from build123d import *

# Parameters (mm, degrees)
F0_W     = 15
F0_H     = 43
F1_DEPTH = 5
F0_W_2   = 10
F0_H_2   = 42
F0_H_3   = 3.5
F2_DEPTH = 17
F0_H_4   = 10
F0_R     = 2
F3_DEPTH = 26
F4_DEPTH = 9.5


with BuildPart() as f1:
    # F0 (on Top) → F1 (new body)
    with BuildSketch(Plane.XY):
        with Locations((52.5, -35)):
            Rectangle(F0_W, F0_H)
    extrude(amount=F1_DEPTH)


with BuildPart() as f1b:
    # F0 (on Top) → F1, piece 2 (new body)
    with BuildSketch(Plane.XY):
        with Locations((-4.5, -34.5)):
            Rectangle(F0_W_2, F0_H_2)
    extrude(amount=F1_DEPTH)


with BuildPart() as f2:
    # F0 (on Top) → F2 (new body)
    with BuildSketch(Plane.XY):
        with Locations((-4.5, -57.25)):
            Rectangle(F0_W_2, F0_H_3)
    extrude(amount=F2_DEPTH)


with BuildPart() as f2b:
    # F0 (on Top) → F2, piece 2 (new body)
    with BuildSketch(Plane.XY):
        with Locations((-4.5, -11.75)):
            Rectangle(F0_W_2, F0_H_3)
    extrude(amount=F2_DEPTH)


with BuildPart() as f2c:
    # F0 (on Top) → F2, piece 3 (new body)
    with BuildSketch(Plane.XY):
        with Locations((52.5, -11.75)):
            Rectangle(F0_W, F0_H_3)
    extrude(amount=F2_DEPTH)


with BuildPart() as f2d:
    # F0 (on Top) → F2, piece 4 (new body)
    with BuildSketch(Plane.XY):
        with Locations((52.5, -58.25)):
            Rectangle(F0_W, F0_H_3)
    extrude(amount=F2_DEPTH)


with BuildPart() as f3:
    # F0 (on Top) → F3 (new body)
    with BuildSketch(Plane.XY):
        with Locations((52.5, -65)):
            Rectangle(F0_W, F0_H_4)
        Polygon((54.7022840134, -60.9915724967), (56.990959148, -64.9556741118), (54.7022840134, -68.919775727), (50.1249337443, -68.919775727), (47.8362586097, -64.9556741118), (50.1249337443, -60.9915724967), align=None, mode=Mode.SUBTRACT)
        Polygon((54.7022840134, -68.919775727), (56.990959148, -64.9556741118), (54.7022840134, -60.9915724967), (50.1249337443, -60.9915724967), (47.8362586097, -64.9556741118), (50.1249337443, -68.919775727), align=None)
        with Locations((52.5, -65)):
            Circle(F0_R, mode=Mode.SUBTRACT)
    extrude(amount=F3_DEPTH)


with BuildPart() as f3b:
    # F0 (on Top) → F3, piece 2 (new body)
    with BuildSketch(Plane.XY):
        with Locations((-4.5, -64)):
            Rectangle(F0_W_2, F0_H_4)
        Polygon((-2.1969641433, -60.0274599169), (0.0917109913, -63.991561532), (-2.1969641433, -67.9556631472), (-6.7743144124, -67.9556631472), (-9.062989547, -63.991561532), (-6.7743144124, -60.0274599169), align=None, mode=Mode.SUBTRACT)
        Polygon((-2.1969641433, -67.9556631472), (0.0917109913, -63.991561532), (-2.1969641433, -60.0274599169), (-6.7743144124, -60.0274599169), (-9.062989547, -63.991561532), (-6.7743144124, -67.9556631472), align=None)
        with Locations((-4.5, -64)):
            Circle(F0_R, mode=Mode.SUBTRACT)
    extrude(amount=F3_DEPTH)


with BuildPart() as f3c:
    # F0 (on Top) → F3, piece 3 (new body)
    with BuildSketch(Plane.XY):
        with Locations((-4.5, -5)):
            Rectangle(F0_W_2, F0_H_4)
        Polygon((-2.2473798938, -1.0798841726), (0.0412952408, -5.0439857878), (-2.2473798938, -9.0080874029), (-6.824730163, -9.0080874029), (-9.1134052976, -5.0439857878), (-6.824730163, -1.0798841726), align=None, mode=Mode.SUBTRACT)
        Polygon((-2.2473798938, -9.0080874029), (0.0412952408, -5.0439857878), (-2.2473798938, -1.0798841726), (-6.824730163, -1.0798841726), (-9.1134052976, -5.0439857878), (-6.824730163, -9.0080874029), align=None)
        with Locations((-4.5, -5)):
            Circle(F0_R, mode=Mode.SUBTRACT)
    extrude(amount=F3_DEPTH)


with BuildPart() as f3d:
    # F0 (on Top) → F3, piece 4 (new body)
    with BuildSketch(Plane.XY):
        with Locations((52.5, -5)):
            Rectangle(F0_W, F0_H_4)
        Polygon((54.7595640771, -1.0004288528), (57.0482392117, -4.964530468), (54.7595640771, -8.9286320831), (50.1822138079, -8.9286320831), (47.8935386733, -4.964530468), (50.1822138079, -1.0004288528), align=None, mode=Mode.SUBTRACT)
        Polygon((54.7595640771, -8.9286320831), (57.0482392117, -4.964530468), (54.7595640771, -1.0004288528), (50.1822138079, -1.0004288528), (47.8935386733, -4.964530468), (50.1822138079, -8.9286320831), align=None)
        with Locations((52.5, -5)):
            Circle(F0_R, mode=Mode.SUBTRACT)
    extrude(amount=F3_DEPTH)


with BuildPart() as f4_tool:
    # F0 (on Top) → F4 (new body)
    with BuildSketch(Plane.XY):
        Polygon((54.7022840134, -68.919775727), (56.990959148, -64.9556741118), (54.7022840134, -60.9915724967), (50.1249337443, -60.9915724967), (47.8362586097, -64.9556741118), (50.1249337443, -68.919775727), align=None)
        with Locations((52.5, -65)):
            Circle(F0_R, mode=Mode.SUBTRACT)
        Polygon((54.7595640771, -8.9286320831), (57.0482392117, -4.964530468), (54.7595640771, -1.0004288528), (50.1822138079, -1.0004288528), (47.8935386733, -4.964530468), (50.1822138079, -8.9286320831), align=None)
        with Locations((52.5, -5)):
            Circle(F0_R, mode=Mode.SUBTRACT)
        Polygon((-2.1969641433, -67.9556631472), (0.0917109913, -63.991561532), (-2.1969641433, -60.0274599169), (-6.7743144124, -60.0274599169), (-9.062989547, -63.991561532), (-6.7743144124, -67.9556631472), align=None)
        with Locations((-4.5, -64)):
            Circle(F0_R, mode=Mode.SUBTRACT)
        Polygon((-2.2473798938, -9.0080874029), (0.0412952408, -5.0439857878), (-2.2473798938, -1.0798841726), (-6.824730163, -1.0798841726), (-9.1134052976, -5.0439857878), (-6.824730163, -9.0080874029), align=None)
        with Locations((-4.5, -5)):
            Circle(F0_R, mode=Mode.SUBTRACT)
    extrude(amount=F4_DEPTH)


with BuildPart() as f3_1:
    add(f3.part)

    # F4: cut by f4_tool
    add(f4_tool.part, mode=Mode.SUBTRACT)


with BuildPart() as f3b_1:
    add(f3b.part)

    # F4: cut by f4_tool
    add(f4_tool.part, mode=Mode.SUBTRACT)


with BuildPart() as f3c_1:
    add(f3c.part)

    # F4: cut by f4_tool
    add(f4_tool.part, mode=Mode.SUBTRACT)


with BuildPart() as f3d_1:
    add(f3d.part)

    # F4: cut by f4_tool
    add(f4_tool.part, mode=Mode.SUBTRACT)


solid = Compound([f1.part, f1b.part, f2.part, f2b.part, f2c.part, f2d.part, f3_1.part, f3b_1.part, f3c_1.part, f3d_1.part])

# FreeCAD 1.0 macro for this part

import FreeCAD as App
import Part
import Sketcher
Q = App.Units.Quantity

doc = App.newDocument("Part")
body = doc.addObject("PartDesign::Body", "Body")

# Sketch on XY plane
sketch1 = body.newObject("Sketcher::SketchObject", "Sketch")
sketch1.AttachmentSupport = (doc.getObject("XY_Plane"), [""])
sketch1.MapMode = "FlatFace"
sketch1.addGeometry(Part.LineSegment(App.Vector(45, -14, 0), App.Vector(45, -56, 0)), False)
sketch1.addGeometry(Part.LineSegment(App.Vector(45, -56, 0), App.Vector(60, -56, 0)), False)
sketch1.addGeometry(Part.LineSegment(App.Vector(60, -56, 0), App.Vector(60, -14, 0)), False)
sketch1.addGeometry(Part.LineSegment(App.Vector(60, -14, 0), App.Vector(45, -14, 0)), False)
sketch1.addConstraint(Sketcher.Constraint("Coincident", 0, 2, 1, 1))
sketch1.addConstraint(Sketcher.Constraint("Coincident", 1, 2, 2, 1))
sketch1.addConstraint(Sketcher.Constraint("Coincident", 2, 2, 3, 1))
sketch1.addConstraint(Sketcher.Constraint("Coincident", 3, 2, 0, 1))
sketch1.addConstraint(Sketcher.Constraint("Vertical", 0))
sketch1.addConstraint(Sketcher.Constraint("Horizontal", 1))
sketch1.addConstraint(Sketcher.Constraint("Vertical", 2))
sketch1.addConstraint(Sketcher.Constraint("Horizontal", 3))
sketch1.addConstraint(Sketcher.Constraint("DistanceX", 1, 1, 1, 2, 15.0))
sketch1.addConstraint(Sketcher.Constraint("DistanceY", 0, 2, 0, 1, 43.0))
sketch1.addConstraint(Sketcher.Constraint("DistanceX", -1, 1, 0, 2, 45.0))
sketch1.addConstraint(Sketcher.Constraint("DistanceY", 0, 2, -1, 1, 56.5))
pad1 = body.newObject("PartDesign::Pad", "Pad")
pad1.Profile = sketch1
pad1.Length = 5
body2 = doc.addObject("PartDesign::Body", "Body001")

# Sketch on XY plane
sketch2 = body2.newObject("Sketcher::SketchObject", "Sketch001")
sketch2.AttachmentSupport = (doc.getObject("XY_Plane001"), [""])
sketch2.MapMode = "FlatFace"
sketch2.addGeometry(Part.LineSegment(App.Vector(-10, -14, 0), App.Vector(-10, -56, 0)), False)
sketch2.addGeometry(Part.LineSegment(App.Vector(-10, -56, 0), App.Vector(0, -56, 0)), False)
sketch2.addGeometry(Part.LineSegment(App.Vector(0, -56, 0), App.Vector(0, -14, 0)), False)
sketch2.addGeometry(Part.LineSegment(App.Vector(0, -14, 0), App.Vector(-10, -14, 0)), False)
sketch2.addConstraint(Sketcher.Constraint("Coincident", 0, 2, 1, 1))
sketch2.addConstraint(Sketcher.Constraint("Coincident", 1, 2, 2, 1))
sketch2.addConstraint(Sketcher.Constraint("Coincident", 2, 2, 3, 1))
sketch2.addConstraint(Sketcher.Constraint("Coincident", 3, 2, 0, 1))
sketch2.addConstraint(Sketcher.Constraint("Vertical", 0))
sketch2.addConstraint(Sketcher.Constraint("Horizontal", 1))
sketch2.addConstraint(Sketcher.Constraint("Vertical", 2))
sketch2.addConstraint(Sketcher.Constraint("Horizontal", 3))
sketch2.addConstraint(Sketcher.Constraint("DistanceX", 1, 1, 1, 2, 10.0))
sketch2.addConstraint(Sketcher.Constraint("DistanceY", 0, 2, 0, 1, 42.0))
sketch2.addConstraint(Sketcher.Constraint("DistanceX", 0, 2, -1, 1, 9.5))
sketch2.addConstraint(Sketcher.Constraint("DistanceY", 0, 2, -1, 1, 55.5))
pad2 = body2.newObject("PartDesign::Pad", "Pad001")
pad2.Profile = sketch2
pad2.Length = 5
body3 = doc.addObject("PartDesign::Body", "Body002")

# Sketch on XY plane
sketch3 = body3.newObject("Sketcher::SketchObject", "Sketch002")
sketch3.AttachmentSupport = (doc.getObject("XY_Plane002"), [""])
sketch3.MapMode = "FlatFace"
sketch3.addGeometry(Part.LineSegment(App.Vector(-9.5, -55.5, 0), App.Vector(-9.5, -59, 0)), False)
sketch3.addGeometry(Part.LineSegment(App.Vector(-9.5, -59, 0), App.Vector(0.5, -59, 0)), False)
sketch3.addGeometry(Part.LineSegment(App.Vector(0.5, -59, 0), App.Vector(0.5, -55.5, 0)), False)
sketch3.addGeometry(Part.LineSegment(App.Vector(0.5, -55.5, 0), App.Vector(-9.5, -55.5, 0)), False)
sketch3.addConstraint(Sketcher.Constraint("Coincident", 0, 2, 1, 1))
sketch3.addConstraint(Sketcher.Constraint("Coincident", 1, 2, 2, 1))
sketch3.addConstraint(Sketcher.Constraint("Coincident", 2, 2, 3, 1))
sketch3.addConstraint(Sketcher.Constraint("Coincident", 3, 2, 0, 1))
sketch3.addConstraint(Sketcher.Constraint("Vertical", 0))
sketch3.addConstraint(Sketcher.Constraint("Horizontal", 1))
sketch3.addConstraint(Sketcher.Constraint("Vertical", 2))
sketch3.addConstraint(Sketcher.Constraint("Horizontal", 3))
sketch3.addConstraint(Sketcher.Constraint("DistanceX", 1, 1, 1, 2, 10.0))
sketch3.addConstraint(Sketcher.Constraint("DistanceY", 0, 2, 0, 1, 3.5))
sketch3.addConstraint(Sketcher.Constraint("DistanceY", 0, 2, -1, 1, 59.0))
sketch3.addConstraint(Sketcher.Constraint("DistanceX", 0, 2, -1, 1, 9.5))
pad3 = body3.newObject("PartDesign::Pad", "Pad002")
pad3.Profile = sketch3
pad3.Length = 17
body4 = doc.addObject("PartDesign::Body", "Body003")

# Sketch on XY plane
sketch4 = body4.newObject("Sketcher::SketchObject", "Sketch003")
sketch4.AttachmentSupport = (doc.getObject("XY_Plane003"), [""])
sketch4.MapMode = "FlatFace"
sketch4.addGeometry(Part.LineSegment(App.Vector(-9.5, -10, 0), App.Vector(-9.5, -13.5, 0)), False)
sketch4.addGeometry(Part.LineSegment(App.Vector(-9.5, -13.5, 0), App.Vector(0.5, -13.5, 0)), False)
sketch4.addGeometry(Part.LineSegment(App.Vector(0.5, -13.5, 0), App.Vector(0.5, -10, 0)), False)
sketch4.addGeometry(Part.LineSegment(App.Vector(0.5, -10, 0), App.Vector(-9.5, -10, 0)), False)
sketch4.addConstraint(Sketcher.Constraint("Coincident", 0, 2, 1, 1))
sketch4.addConstraint(Sketcher.Constraint("Coincident", 1, 2, 2, 1))
sketch4.addConstraint(Sketcher.Constraint("Coincident", 2, 2, 3, 1))
sketch4.addConstraint(Sketcher.Constraint("Coincident", 3, 2, 0, 1))
sketch4.addConstraint(Sketcher.Constraint("Vertical", 0))
sketch4.addConstraint(Sketcher.Constraint("Horizontal", 1))
sketch4.addConstraint(Sketcher.Constraint("Vertical", 2))
sketch4.addConstraint(Sketcher.Constraint("Horizontal", 3))
sketch4.addConstraint(Sketcher.Constraint("DistanceX", 1, 1, 1, 2, 10.0))
sketch4.addConstraint(Sketcher.Constraint("DistanceY", 0, 2, 0, 1, 3.5))
sketch4.addConstraint(Sketcher.Constraint("DistanceY", 2, 2, -1, 1, 10.0))
sketch4.addConstraint(Sketcher.Constraint("DistanceX", 0, 2, -1, 1, 9.5))
pad4 = body4.newObject("PartDesign::Pad", "Pad003")
pad4.Profile = sketch4
pad4.Length = 17
body5 = doc.addObject("PartDesign::Body", "Body004")

# Sketch on XY plane
sketch5 = body5.newObject("Sketcher::SketchObject", "Sketch004")
sketch5.AttachmentSupport = (doc.getObject("XY_Plane004"), [""])
sketch5.MapMode = "FlatFace"
sketch5.addGeometry(Part.LineSegment(App.Vector(45, -10, 0), App.Vector(45, -13.5, 0)), False)
sketch5.addGeometry(Part.LineSegment(App.Vector(45, -13.5, 0), App.Vector(60, -13.5, 0)), False)
sketch5.addGeometry(Part.LineSegment(App.Vector(60, -13.5, 0), App.Vector(60, -10, 0)), False)
sketch5.addGeometry(Part.LineSegment(App.Vector(60, -10, 0), App.Vector(45, -10, 0)), False)
sketch5.addConstraint(Sketcher.Constraint("Coincident", 0, 2, 1, 1))
sketch5.addConstraint(Sketcher.Constraint("Coincident", 1, 2, 2, 1))
sketch5.addConstraint(Sketcher.Constraint("Coincident", 2, 2, 3, 1))
sketch5.addConstraint(Sketcher.Constraint("Coincident", 3, 2, 0, 1))
sketch5.addConstraint(Sketcher.Constraint("Vertical", 0))
sketch5.addConstraint(Sketcher.Constraint("Horizontal", 1))
sketch5.addConstraint(Sketcher.Constraint("Vertical", 2))
sketch5.addConstraint(Sketcher.Constraint("Horizontal", 3))
sketch5.addConstraint(Sketcher.Constraint("DistanceX", 1, 1, 1, 2, 15.0))
sketch5.addConstraint(Sketcher.Constraint("DistanceY", 0, 2, 0, 1, 3.5))
sketch5.addConstraint(Sketcher.Constraint("DistanceX", -1, 1, 0, 2, 45.0))
sketch5.addConstraint(Sketcher.Constraint("DistanceY", 2, 2, -1, 1, 10.0))
pad5 = body5.newObject("PartDesign::Pad", "Pad004")
pad5.Profile = sketch5
pad5.Length = 17
body6 = doc.addObject("PartDesign::Body", "Body005")

# Sketch on XY plane
sketch6 = body6.newObject("Sketcher::SketchObject", "Sketch005")
sketch6.AttachmentSupport = (doc.getObject("XY_Plane005"), [""])
sketch6.MapMode = "FlatFace"
sketch6.addGeometry(Part.LineSegment(App.Vector(45, -56.5, 0), App.Vector(45, -60, 0)), False)
sketch6.addGeometry(Part.LineSegment(App.Vector(45, -60, 0), App.Vector(60, -60, 0)), False)
sketch6.addGeometry(Part.LineSegment(App.Vector(60, -60, 0), App.Vector(60, -56.5, 0)), False)
sketch6.addGeometry(Part.LineSegment(App.Vector(60, -56.5, 0), App.Vector(45, -56.5, 0)), False)
sketch6.addConstraint(Sketcher.Constraint("Coincident", 0, 2, 1, 1))
sketch6.addConstraint(Sketcher.Constraint("Coincident", 1, 2, 2, 1))
sketch6.addConstraint(Sketcher.Constraint("Coincident", 2, 2, 3, 1))
sketch6.addConstraint(Sketcher.Constraint("Coincident", 3, 2, 0, 1))
sketch6.addConstraint(Sketcher.Constraint("Vertical", 0))
sketch6.addConstraint(Sketcher.Constraint("Horizontal", 1))
sketch6.addConstraint(Sketcher.Constraint("Vertical", 2))
sketch6.addConstraint(Sketcher.Constraint("Horizontal", 3))
sketch6.addConstraint(Sketcher.Constraint("DistanceX", 1, 1, 1, 2, 15.0))
sketch6.addConstraint(Sketcher.Constraint("DistanceY", 0, 2, 0, 1, 3.5))
sketch6.addConstraint(Sketcher.Constraint("DistanceX", -1, 1, 0, 2, 45.0))
sketch6.addConstraint(Sketcher.Constraint("DistanceY", 0, 2, -1, 1, 60.0))
pad6 = body6.newObject("PartDesign::Pad", "Pad005")
pad6.Profile = sketch6
pad6.Length = 17
body7 = doc.addObject("PartDesign::Body", "Body006")

# Sketch on XY plane
sketch7 = body7.newObject("Sketcher::SketchObject", "Sketch006")
sketch7.AttachmentSupport = (doc.getObject("XY_Plane006"), [""])
sketch7.MapMode = "FlatFace"
sketch7.addGeometry(Part.LineSegment(App.Vector(45, -60, 0), App.Vector(45, -70, 0)), False)
sketch7.addGeometry(Part.LineSegment(App.Vector(45, -70, 0), App.Vector(60, -70, 0)), False)
sketch7.addGeometry(Part.LineSegment(App.Vector(60, -70, 0), App.Vector(60, -60, 0)), False)
sketch7.addGeometry(Part.LineSegment(App.Vector(60, -60, 0), App.Vector(45, -60, 0)), False)
sketch7.addGeometry(Part.Circle(App.Vector(52.5, -65, 0), App.Vector(0, 0, 1), 2), False)
sketch7.addConstraint(Sketcher.Constraint("Coincident", 0, 2, 1, 1))
sketch7.addConstraint(Sketcher.Constraint("Coincident", 1, 2, 2, 1))
sketch7.addConstraint(Sketcher.Constraint("Coincident", 2, 2, 3, 1))
sketch7.addConstraint(Sketcher.Constraint("Coincident", 3, 2, 0, 1))
sketch7.addConstraint(Sketcher.Constraint("Vertical", 0))
sketch7.addConstraint(Sketcher.Constraint("Horizontal", 1))
sketch7.addConstraint(Sketcher.Constraint("Vertical", 2))
sketch7.addConstraint(Sketcher.Constraint("Horizontal", 3))
sketch7.addConstraint(Sketcher.Constraint("Diameter", 4, 4.0))
sketch7.addConstraint(Sketcher.Constraint("DistanceX", 1, 1, 1, 2, 15.0))
sketch7.addConstraint(Sketcher.Constraint("DistanceY", 0, 2, 0, 1, 10.0))
sketch7.addConstraint(Sketcher.Constraint("DistanceY", 4, 3, -1, 1, 65.0))
sketch7.addConstraint(Sketcher.Constraint("DistanceX", -1, 1, 0, 2, 45.0))
sketch7.addConstraint(Sketcher.Constraint("DistanceY", 0, 2, -1, 1, 70.0))
sketch7.addConstraint(Sketcher.Constraint("DistanceX", -1, 1, 4, 3, 52.5))
pad7 = body7.newObject("PartDesign::Pad", "Pad006")
pad7.Profile = sketch7
pad7.Length = 26
body8 = doc.addObject("PartDesign::Body", "Body007")

# Sketch on XY plane
sketch8 = body8.newObject("Sketcher::SketchObject", "Sketch007")
sketch8.AttachmentSupport = (doc.getObject("XY_Plane007"), [""])
sketch8.MapMode = "FlatFace"
sketch8.addGeometry(Part.LineSegment(App.Vector(-9.5, -59, 0), App.Vector(-9.5, -69, 0)), False)
sketch8.addGeometry(Part.LineSegment(App.Vector(-9.5, -69, 0), App.Vector(0.5, -69, 0)), False)
sketch8.addGeometry(Part.LineSegment(App.Vector(0.5, -69, 0), App.Vector(0.5, -59, 0)), False)
sketch8.addGeometry(Part.LineSegment(App.Vector(0.5, -59, 0), App.Vector(-9.5, -59, 0)), False)
sketch8.addGeometry(Part.Circle(App.Vector(-4.5, -64, 0), App.Vector(0, 0, 1), 2), False)
sketch8.addConstraint(Sketcher.Constraint("Coincident", 0, 2, 1, 1))
sketch8.addConstraint(Sketcher.Constraint("Coincident", 1, 2, 2, 1))
sketch8.addConstraint(Sketcher.Constraint("Coincident", 2, 2, 3, 1))
sketch8.addConstraint(Sketcher.Constraint("Coincident", 3, 2, 0, 1))
sketch8.addConstraint(Sketcher.Constraint("Vertical", 0))
sketch8.addConstraint(Sketcher.Constraint("Horizontal", 1))
sketch8.addConstraint(Sketcher.Constraint("Vertical", 2))
sketch8.addConstraint(Sketcher.Constraint("Horizontal", 3))
sketch8.addConstraint(Sketcher.Constraint("Equal", 3, 0))
sketch8.addConstraint(Sketcher.Constraint("Diameter", 4, 4.0))
sketch8.addConstraint(Sketcher.Constraint("DistanceX", 1, 1, 1, 2, 10.0))
sketch8.addConstraint(Sketcher.Constraint("DistanceY", 4, 3, -1, 1, 64.0))
sketch8.addConstraint(Sketcher.Constraint("DistanceY", 0, 2, -1, 1, 69.0))
sketch8.addConstraint(Sketcher.Constraint("DistanceX", 0, 2, 4, 3, 5.0))
sketch8.addConstraint(Sketcher.Constraint("DistanceX", 4, 3, -1, 1, 4.5))
pad8 = body8.newObject("PartDesign::Pad", "Pad007")
pad8.Profile = sketch8
pad8.Length = 26
body9 = doc.addObject("PartDesign::Body", "Body008")

# Sketch on XY plane
sketch9 = body9.newObject("Sketcher::SketchObject", "Sketch008")
sketch9.AttachmentSupport = (doc.getObject("XY_Plane008"), [""])
sketch9.MapMode = "FlatFace"
sketch9.addGeometry(Part.LineSegment(App.Vector(-9.5, 0, 0), App.Vector(-9.5, -10, 0)), False)
sketch9.addGeometry(Part.LineSegment(App.Vector(-9.5, -10, 0), App.Vector(0.5, -10, 0)), False)
sketch9.addGeometry(Part.LineSegment(App.Vector(0.5, -10, 0), App.Vector(0.5, 0, 0)), False)
sketch9.addGeometry(Part.LineSegment(App.Vector(0.5, 0, 0), App.Vector(-9.5, 0, 0)), False)
sketch9.addGeometry(Part.Circle(App.Vector(-4.5, -5, 0), App.Vector(0, 0, 1), 2), False)
sketch9.addConstraint(Sketcher.Constraint("Coincident", 0, 2, 1, 1))
sketch9.addConstraint(Sketcher.Constraint("Coincident", 1, 2, 2, 1))
sketch9.addConstraint(Sketcher.Constraint("Coincident", 2, 2, 3, 1))
sketch9.addConstraint(Sketcher.Constraint("Coincident", 3, 2, 0, 1))
sketch9.addConstraint(Sketcher.Constraint("Vertical", 0))
sketch9.addConstraint(Sketcher.Constraint("Horizontal", 1))
sketch9.addConstraint(Sketcher.Constraint("Vertical", 2))
sketch9.addConstraint(Sketcher.Constraint("Horizontal", 3))
sketch9.addConstraint(Sketcher.Constraint("PointOnObject", 2, 2, -1))
sketch9.addConstraint(Sketcher.Constraint("Equal", 3, 0))
sketch9.addConstraint(Sketcher.Constraint("Diameter", 4, 4.0))
sketch9.addConstraint(Sketcher.Constraint("DistanceX", 1, 1, 1, 2, 10.0))
sketch9.addConstraint(Sketcher.Constraint("DistanceY", 4, 3, -1, 1, 5.0))
sketch9.addConstraint(Sketcher.Constraint("DistanceX", 0, 2, 4, 3, 5.0))
sketch9.addConstraint(Sketcher.Constraint("DistanceX", 4, 3, -1, 1, 4.5))
pad9 = body9.newObject("PartDesign::Pad", "Pad008")
pad9.Profile = sketch9
pad9.Length = 26
body10 = doc.addObject("PartDesign::Body", "Body009")

# Sketch on XY plane
sketch10 = body10.newObject("Sketcher::SketchObject", "Sketch009")
sketch10.AttachmentSupport = (doc.getObject("XY_Plane009"), [""])
sketch10.MapMode = "FlatFace"
sketch10.addGeometry(Part.LineSegment(App.Vector(45, 0, 0), App.Vector(45, -10, 0)), False)
sketch10.addGeometry(Part.LineSegment(App.Vector(45, -10, 0), App.Vector(60, -10, 0)), False)
sketch10.addGeometry(Part.LineSegment(App.Vector(60, -10, 0), App.Vector(60, 0, 0)), False)
sketch10.addGeometry(Part.LineSegment(App.Vector(60, 0, 0), App.Vector(45, 0, 0)), False)
sketch10.addGeometry(Part.Circle(App.Vector(52.5, -5, 0), App.Vector(0, 0, 1), 2), False)
sketch10.addConstraint(Sketcher.Constraint("Coincident", 0, 2, 1, 1))
sketch10.addConstraint(Sketcher.Constraint("Coincident", 1, 2, 2, 1))
sketch10.addConstraint(Sketcher.Constraint("Coincident", 2, 2, 3, 1))
sketch10.addConstraint(Sketcher.Constraint("Coincident", 3, 2, 0, 1))
sketch10.addConstraint(Sketcher.Constraint("Vertical", 0))
sketch10.addConstraint(Sketcher.Constraint("Horizontal", 1))
sketch10.addConstraint(Sketcher.Constraint("Vertical", 2))
sketch10.addConstraint(Sketcher.Constraint("Horizontal", 3))
sketch10.addConstraint(Sketcher.Constraint("PointOnObject", 2, 2, -1))
sketch10.addConstraint(Sketcher.Constraint("Diameter", 4, 4.0))
sketch10.addConstraint(Sketcher.Constraint("DistanceX", 1, 1, 1, 2, 15.0))
sketch10.addConstraint(Sketcher.Constraint("DistanceY", 0, 2, 0, 1, 10.0))
sketch10.addConstraint(Sketcher.Constraint("DistanceY", 4, 3, -1, 1, 5.0))
sketch10.addConstraint(Sketcher.Constraint("DistanceX", -1, 1, 0, 2, 45.0))
sketch10.addConstraint(Sketcher.Constraint("DistanceX", -1, 1, 4, 3, 52.5))
pad10 = body10.newObject("PartDesign::Pad", "Pad009")
pad10.Profile = sketch10
pad10.Length = 26
body11 = doc.addObject("PartDesign::Body", "Body010")
body11.AllowCompound = True

# Sketch on XY plane
sketch11 = body11.newObject("Sketcher::SketchObject", "Sketch010")
sketch11.AttachmentSupport = (doc.getObject("XY_Plane010"), [""])
sketch11.MapMode = "FlatFace"
sketch11.addGeometry(Part.LineSegment(App.Vector(54.7, -68.9, 0), App.Vector(57, -65, 0)), False)
sketch11.addGeometry(Part.LineSegment(App.Vector(57, -65, 0), App.Vector(54.7, -61, 0)), False)
sketch11.addGeometry(Part.LineSegment(App.Vector(54.7, -61, 0), App.Vector(50.1, -61, 0)), False)
sketch11.addGeometry(Part.LineSegment(App.Vector(50.1, -61, 0), App.Vector(47.8, -65, 0)), False)
sketch11.addGeometry(Part.LineSegment(App.Vector(47.8, -65, 0), App.Vector(50.1, -68.9, 0)), False)
sketch11.addGeometry(Part.LineSegment(App.Vector(50.1, -68.9, 0), App.Vector(54.7, -68.9, 0)), False)
sketch11.addGeometry(Part.Circle(App.Vector(52.5, -65, 0), App.Vector(0, 0, 1), 2), False)
sketch11.addGeometry(Part.LineSegment(App.Vector(54.8, -8.9, 0), App.Vector(57, -5, 0)), False)
sketch11.addGeometry(Part.LineSegment(App.Vector(57, -5, 0), App.Vector(54.8, -1, 0)), False)
sketch11.addGeometry(Part.LineSegment(App.Vector(54.8, -1, 0), App.Vector(50.2, -1, 0)), False)
sketch11.addGeometry(Part.LineSegment(App.Vector(50.2, -1, 0), App.Vector(47.9, -5, 0)), False)
sketch11.addGeometry(Part.LineSegment(App.Vector(47.9, -5, 0), App.Vector(50.2, -8.9, 0)), False)
sketch11.addGeometry(Part.LineSegment(App.Vector(50.2, -8.9, 0), App.Vector(54.8, -8.9, 0)), False)
sketch11.addGeometry(Part.Circle(App.Vector(52.5, -5, 0), App.Vector(0, 0, 1), 2), False)
sketch11.addGeometry(Part.LineSegment(App.Vector(-2.2, -68, 0), App.Vector(0.1, -64, 0)), False)
sketch11.addGeometry(Part.LineSegment(App.Vector(0.1, -64, 0), App.Vector(-2.2, -60, 0)), False)
sketch11.addGeometry(Part.LineSegment(App.Vector(-2.2, -60, 0), App.Vector(-6.8, -60, 0)), False)
sketch11.addGeometry(Part.LineSegment(App.Vector(-6.8, -60, 0), App.Vector(-9.1, -64, 0)), False)
sketch11.addGeometry(Part.LineSegment(App.Vector(-9.1, -64, 0), App.Vector(-6.8, -68, 0)), False)
sketch11.addGeometry(Part.LineSegment(App.Vector(-6.8, -68, 0), App.Vector(-2.2, -68, 0)), False)
sketch11.addGeometry(Part.Circle(App.Vector(-4.5, -64, 0), App.Vector(0, 0, 1), 2), False)
sketch11.addGeometry(Part.LineSegment(App.Vector(-2.2, -9, 0), App.Vector(0, -5, 0)), False)
sketch11.addGeometry(Part.LineSegment(App.Vector(0, -5, 0), App.Vector(-2.2, -1.1, 0)), False)
sketch11.addGeometry(Part.LineSegment(App.Vector(-2.2, -1.1, 0), App.Vector(-6.8, -1.1, 0)), False)
sketch11.addGeometry(Part.LineSegment(App.Vector(-6.8, -1.1, 0), App.Vector(-9.1, -5, 0)), False)
sketch11.addGeometry(Part.LineSegment(App.Vector(-9.1, -5, 0), App.Vector(-6.8, -9, 0)), False)
sketch11.addGeometry(Part.LineSegment(App.Vector(-6.8, -9, 0), App.Vector(-2.2, -9, 0)), False)
sketch11.addGeometry(Part.Circle(App.Vector(-4.5, -5, 0), App.Vector(0, 0, 1), 2), False)
sketch11.addConstraint(Sketcher.Constraint("Coincident", 0, 2, 1, 1))
sketch11.addConstraint(Sketcher.Constraint("Coincident", 1, 2, 2, 1))
sketch11.addConstraint(Sketcher.Constraint("Coincident", 2, 2, 3, 1))
sketch11.addConstraint(Sketcher.Constraint("Coincident", 3, 2, 4, 1))
sketch11.addConstraint(Sketcher.Constraint("Coincident", 4, 2, 5, 1))
sketch11.addConstraint(Sketcher.Constraint("Coincident", 5, 2, 0, 1))
sketch11.addConstraint(Sketcher.Constraint("Coincident", 7, 2, 8, 1))
sketch11.addConstraint(Sketcher.Constraint("Coincident", 8, 2, 9, 1))
sketch11.addConstraint(Sketcher.Constraint("Coincident", 9, 2, 10, 1))
sketch11.addConstraint(Sketcher.Constraint("Coincident", 10, 2, 11, 1))
sketch11.addConstraint(Sketcher.Constraint("Coincident", 11, 2, 12, 1))
sketch11.addConstraint(Sketcher.Constraint("Coincident", 12, 2, 7, 1))
sketch11.addConstraint(Sketcher.Constraint("Coincident", 14, 2, 15, 1))
sketch11.addConstraint(Sketcher.Constraint("Coincident", 15, 2, 16, 1))
sketch11.addConstraint(Sketcher.Constraint("Coincident", 16, 2, 17, 1))
sketch11.addConstraint(Sketcher.Constraint("Coincident", 17, 2, 18, 1))
sketch11.addConstraint(Sketcher.Constraint("Coincident", 18, 2, 19, 1))
sketch11.addConstraint(Sketcher.Constraint("Coincident", 19, 2, 14, 1))
sketch11.addConstraint(Sketcher.Constraint("Coincident", 21, 2, 22, 1))
sketch11.addConstraint(Sketcher.Constraint("Coincident", 22, 2, 23, 1))
sketch11.addConstraint(Sketcher.Constraint("Coincident", 23, 2, 24, 1))
sketch11.addConstraint(Sketcher.Constraint("Coincident", 24, 2, 25, 1))
sketch11.addConstraint(Sketcher.Constraint("Coincident", 25, 2, 26, 1))
sketch11.addConstraint(Sketcher.Constraint("Coincident", 26, 2, 21, 1))
sketch11.addConstraint(Sketcher.Constraint("Horizontal", 2))
sketch11.addConstraint(Sketcher.Constraint("Horizontal", 5))
sketch11.addConstraint(Sketcher.Constraint("Horizontal", 9))
sketch11.addConstraint(Sketcher.Constraint("Horizontal", 12))
sketch11.addConstraint(Sketcher.Constraint("Horizontal", 16))
sketch11.addConstraint(Sketcher.Constraint("Horizontal", 19))
sketch11.addConstraint(Sketcher.Constraint("Horizontal", 23))
sketch11.addConstraint(Sketcher.Constraint("Horizontal", 26))
sketch11.addConstraint(Sketcher.Constraint("Equal", 6, 13))
sketch11.addConstraint(Sketcher.Constraint("Equal", 13, 20))
sketch11.addConstraint(Sketcher.Constraint("Equal", 20, 27))
sketch11.addConstraint(Sketcher.Constraint("Parallel", 0, 3))
sketch11.addConstraint(Sketcher.Constraint("Parallel", 1, 4))
sketch11.addConstraint(Sketcher.Constraint("Parallel", 3, 7))
sketch11.addConstraint(Sketcher.Constraint("Parallel", 4, 8))
sketch11.addConstraint(Sketcher.Constraint("Parallel", 7, 10))
sketch11.addConstraint(Sketcher.Constraint("Parallel", 8, 11))
sketch11.addConstraint(Sketcher.Constraint("Parallel", 10, 14))
sketch11.addConstraint(Sketcher.Constraint("Parallel", 11, 15))
sketch11.addConstraint(Sketcher.Constraint("Parallel", 14, 17))
sketch11.addConstraint(Sketcher.Constraint("Parallel", 15, 18))
sketch11.addConstraint(Sketcher.Constraint("Parallel", 17, 21))
sketch11.addConstraint(Sketcher.Constraint("Parallel", 18, 22))
sketch11.addConstraint(Sketcher.Constraint("Parallel", 21, 24))
sketch11.addConstraint(Sketcher.Constraint("Parallel", 22, 25))
sketch11.addConstraint(Sketcher.Constraint("Horizontal", 13, 3, 27, 3))
sketch11.addConstraint(Sketcher.Constraint("Horizontal", 0, 2, 3, 2))
sketch11.addConstraint(Sketcher.Constraint("Horizontal", 7, 2, 10, 2))
sketch11.addConstraint(Sketcher.Constraint("Horizontal", 14, 2, 17, 2))
sketch11.addConstraint(Sketcher.Constraint("Horizontal", 21, 2, 24, 2))
sketch11.addConstraint(Sketcher.Constraint("Vertical", 6, 3, 13, 3))
sketch11.addConstraint(Sketcher.Constraint("Vertical", 20, 3, 27, 3))
sketch11.addConstraint(Sketcher.Constraint("Vertical", 2, 2, 4, 2))
sketch11.addConstraint(Sketcher.Constraint("Vertical", 1, 2, 5, 2))
sketch11.addConstraint(Sketcher.Constraint("Vertical", 9, 2, 11, 2))
sketch11.addConstraint(Sketcher.Constraint("Vertical", 16, 2, 18, 2))
sketch11.addConstraint(Sketcher.Constraint("Vertical", 23, 2, 25, 2))
sketch11.addConstraint(Sketcher.Constraint("Equal", 5, 9))
sketch11.addConstraint(Sketcher.Constraint("Equal", 12, 16))
sketch11.addConstraint(Sketcher.Constraint("Equal", 19, 23))
sketch11.addConstraint(Sketcher.Constraint("Equal", 4, 7))
sketch11.addConstraint(Sketcher.Constraint("Equal", 11, 14))
sketch11.addConstraint(Sketcher.Constraint("Equal", 18, 21))
sketch11.addConstraint(Sketcher.Constraint("Diameter", 6, 4.0))
sketch11.addConstraint(Sketcher.Constraint("Angle", 0, Q("60 deg")))
sketch11.addConstraint(Sketcher.Constraint("DistanceY", 6, 3, -1, 1, 65.0))
sketch11.addConstraint(Sketcher.Constraint("DistanceY", 13, 3, -1, 1, 5.0))
sketch11.addConstraint(Sketcher.Constraint("DistanceY", 20, 3, -1, 1, 64.0))
sketch11.addConstraint(Sketcher.Constraint("DistanceX", 20, 3, 6, 3, 57.0))
sketch11.addConstraint(Sketcher.Constraint("DistanceX", -1, 1, 6, 3, 52.5))
sketch11.addConstraint(Sketcher.Constraint("DistanceX", 2, 2, 2, 1, 4.57735))
sketch11.addConstraint(Sketcher.Constraint("DistanceY", 0, 2, 1, 2, 3.964102))
sketch11.addConstraint(Sketcher.Constraint("DistanceX", -1, 1, 0, 2, 56.990959))
sketch11.addConstraint(Sketcher.Constraint("DistanceX", -1, 1, 7, 2, 57.048239))
sketch11.addConstraint(Sketcher.Constraint("DistanceY", 7, 2, -1, 1, 4.96453))
sketch11.addConstraint(Sketcher.Constraint("DistanceX", -1, 1, 14, 2, 0.091711))
sketch11.addConstraint(Sketcher.Constraint("DistanceY", 14, 2, -1, 1, 63.991562))
sketch11.addConstraint(Sketcher.Constraint("DistanceX", 22, 2, -1, 1, 2.24738))
sketch11.addConstraint(Sketcher.Constraint("DistanceY", 14, 2, 2, 2, 2.999989))
sketch11.addConstraint(Sketcher.Constraint("DistanceY", 21, 2, -1, 1, 5.043986))
pad11 = body11.newObject("PartDesign::Pad", "Pad010")
pad11.Profile = sketch11
pad11.Length = 9.5
doc.recompute()

body12 = doc.addObject("PartDesign::Body", "Body011")
body12.BaseFeature = body11
boolean = body7.newObject("PartDesign::Boolean", "Boolean")
boolean.Type = "Cut"
boolean.addObjects([body12])
doc.recompute()

body13 = doc.addObject("PartDesign::Body", "Body012")
body13.BaseFeature = body11
boolean2 = body8.newObject("PartDesign::Boolean", "Boolean001")
boolean2.Type = "Cut"
boolean2.addObjects([body13])
doc.recompute()

body14 = doc.addObject("PartDesign::Body", "Body013")
body14.BaseFeature = body11
boolean3 = body9.newObject("PartDesign::Boolean", "Boolean002")
boolean3.Type = "Cut"
boolean3.addObjects([body14])
doc.recompute()

boolean4 = body10.newObject("PartDesign::Boolean", "Boolean003")
boolean4.Type = "Cut"
boolean4.addObjects([body11])

doc.recompute()
